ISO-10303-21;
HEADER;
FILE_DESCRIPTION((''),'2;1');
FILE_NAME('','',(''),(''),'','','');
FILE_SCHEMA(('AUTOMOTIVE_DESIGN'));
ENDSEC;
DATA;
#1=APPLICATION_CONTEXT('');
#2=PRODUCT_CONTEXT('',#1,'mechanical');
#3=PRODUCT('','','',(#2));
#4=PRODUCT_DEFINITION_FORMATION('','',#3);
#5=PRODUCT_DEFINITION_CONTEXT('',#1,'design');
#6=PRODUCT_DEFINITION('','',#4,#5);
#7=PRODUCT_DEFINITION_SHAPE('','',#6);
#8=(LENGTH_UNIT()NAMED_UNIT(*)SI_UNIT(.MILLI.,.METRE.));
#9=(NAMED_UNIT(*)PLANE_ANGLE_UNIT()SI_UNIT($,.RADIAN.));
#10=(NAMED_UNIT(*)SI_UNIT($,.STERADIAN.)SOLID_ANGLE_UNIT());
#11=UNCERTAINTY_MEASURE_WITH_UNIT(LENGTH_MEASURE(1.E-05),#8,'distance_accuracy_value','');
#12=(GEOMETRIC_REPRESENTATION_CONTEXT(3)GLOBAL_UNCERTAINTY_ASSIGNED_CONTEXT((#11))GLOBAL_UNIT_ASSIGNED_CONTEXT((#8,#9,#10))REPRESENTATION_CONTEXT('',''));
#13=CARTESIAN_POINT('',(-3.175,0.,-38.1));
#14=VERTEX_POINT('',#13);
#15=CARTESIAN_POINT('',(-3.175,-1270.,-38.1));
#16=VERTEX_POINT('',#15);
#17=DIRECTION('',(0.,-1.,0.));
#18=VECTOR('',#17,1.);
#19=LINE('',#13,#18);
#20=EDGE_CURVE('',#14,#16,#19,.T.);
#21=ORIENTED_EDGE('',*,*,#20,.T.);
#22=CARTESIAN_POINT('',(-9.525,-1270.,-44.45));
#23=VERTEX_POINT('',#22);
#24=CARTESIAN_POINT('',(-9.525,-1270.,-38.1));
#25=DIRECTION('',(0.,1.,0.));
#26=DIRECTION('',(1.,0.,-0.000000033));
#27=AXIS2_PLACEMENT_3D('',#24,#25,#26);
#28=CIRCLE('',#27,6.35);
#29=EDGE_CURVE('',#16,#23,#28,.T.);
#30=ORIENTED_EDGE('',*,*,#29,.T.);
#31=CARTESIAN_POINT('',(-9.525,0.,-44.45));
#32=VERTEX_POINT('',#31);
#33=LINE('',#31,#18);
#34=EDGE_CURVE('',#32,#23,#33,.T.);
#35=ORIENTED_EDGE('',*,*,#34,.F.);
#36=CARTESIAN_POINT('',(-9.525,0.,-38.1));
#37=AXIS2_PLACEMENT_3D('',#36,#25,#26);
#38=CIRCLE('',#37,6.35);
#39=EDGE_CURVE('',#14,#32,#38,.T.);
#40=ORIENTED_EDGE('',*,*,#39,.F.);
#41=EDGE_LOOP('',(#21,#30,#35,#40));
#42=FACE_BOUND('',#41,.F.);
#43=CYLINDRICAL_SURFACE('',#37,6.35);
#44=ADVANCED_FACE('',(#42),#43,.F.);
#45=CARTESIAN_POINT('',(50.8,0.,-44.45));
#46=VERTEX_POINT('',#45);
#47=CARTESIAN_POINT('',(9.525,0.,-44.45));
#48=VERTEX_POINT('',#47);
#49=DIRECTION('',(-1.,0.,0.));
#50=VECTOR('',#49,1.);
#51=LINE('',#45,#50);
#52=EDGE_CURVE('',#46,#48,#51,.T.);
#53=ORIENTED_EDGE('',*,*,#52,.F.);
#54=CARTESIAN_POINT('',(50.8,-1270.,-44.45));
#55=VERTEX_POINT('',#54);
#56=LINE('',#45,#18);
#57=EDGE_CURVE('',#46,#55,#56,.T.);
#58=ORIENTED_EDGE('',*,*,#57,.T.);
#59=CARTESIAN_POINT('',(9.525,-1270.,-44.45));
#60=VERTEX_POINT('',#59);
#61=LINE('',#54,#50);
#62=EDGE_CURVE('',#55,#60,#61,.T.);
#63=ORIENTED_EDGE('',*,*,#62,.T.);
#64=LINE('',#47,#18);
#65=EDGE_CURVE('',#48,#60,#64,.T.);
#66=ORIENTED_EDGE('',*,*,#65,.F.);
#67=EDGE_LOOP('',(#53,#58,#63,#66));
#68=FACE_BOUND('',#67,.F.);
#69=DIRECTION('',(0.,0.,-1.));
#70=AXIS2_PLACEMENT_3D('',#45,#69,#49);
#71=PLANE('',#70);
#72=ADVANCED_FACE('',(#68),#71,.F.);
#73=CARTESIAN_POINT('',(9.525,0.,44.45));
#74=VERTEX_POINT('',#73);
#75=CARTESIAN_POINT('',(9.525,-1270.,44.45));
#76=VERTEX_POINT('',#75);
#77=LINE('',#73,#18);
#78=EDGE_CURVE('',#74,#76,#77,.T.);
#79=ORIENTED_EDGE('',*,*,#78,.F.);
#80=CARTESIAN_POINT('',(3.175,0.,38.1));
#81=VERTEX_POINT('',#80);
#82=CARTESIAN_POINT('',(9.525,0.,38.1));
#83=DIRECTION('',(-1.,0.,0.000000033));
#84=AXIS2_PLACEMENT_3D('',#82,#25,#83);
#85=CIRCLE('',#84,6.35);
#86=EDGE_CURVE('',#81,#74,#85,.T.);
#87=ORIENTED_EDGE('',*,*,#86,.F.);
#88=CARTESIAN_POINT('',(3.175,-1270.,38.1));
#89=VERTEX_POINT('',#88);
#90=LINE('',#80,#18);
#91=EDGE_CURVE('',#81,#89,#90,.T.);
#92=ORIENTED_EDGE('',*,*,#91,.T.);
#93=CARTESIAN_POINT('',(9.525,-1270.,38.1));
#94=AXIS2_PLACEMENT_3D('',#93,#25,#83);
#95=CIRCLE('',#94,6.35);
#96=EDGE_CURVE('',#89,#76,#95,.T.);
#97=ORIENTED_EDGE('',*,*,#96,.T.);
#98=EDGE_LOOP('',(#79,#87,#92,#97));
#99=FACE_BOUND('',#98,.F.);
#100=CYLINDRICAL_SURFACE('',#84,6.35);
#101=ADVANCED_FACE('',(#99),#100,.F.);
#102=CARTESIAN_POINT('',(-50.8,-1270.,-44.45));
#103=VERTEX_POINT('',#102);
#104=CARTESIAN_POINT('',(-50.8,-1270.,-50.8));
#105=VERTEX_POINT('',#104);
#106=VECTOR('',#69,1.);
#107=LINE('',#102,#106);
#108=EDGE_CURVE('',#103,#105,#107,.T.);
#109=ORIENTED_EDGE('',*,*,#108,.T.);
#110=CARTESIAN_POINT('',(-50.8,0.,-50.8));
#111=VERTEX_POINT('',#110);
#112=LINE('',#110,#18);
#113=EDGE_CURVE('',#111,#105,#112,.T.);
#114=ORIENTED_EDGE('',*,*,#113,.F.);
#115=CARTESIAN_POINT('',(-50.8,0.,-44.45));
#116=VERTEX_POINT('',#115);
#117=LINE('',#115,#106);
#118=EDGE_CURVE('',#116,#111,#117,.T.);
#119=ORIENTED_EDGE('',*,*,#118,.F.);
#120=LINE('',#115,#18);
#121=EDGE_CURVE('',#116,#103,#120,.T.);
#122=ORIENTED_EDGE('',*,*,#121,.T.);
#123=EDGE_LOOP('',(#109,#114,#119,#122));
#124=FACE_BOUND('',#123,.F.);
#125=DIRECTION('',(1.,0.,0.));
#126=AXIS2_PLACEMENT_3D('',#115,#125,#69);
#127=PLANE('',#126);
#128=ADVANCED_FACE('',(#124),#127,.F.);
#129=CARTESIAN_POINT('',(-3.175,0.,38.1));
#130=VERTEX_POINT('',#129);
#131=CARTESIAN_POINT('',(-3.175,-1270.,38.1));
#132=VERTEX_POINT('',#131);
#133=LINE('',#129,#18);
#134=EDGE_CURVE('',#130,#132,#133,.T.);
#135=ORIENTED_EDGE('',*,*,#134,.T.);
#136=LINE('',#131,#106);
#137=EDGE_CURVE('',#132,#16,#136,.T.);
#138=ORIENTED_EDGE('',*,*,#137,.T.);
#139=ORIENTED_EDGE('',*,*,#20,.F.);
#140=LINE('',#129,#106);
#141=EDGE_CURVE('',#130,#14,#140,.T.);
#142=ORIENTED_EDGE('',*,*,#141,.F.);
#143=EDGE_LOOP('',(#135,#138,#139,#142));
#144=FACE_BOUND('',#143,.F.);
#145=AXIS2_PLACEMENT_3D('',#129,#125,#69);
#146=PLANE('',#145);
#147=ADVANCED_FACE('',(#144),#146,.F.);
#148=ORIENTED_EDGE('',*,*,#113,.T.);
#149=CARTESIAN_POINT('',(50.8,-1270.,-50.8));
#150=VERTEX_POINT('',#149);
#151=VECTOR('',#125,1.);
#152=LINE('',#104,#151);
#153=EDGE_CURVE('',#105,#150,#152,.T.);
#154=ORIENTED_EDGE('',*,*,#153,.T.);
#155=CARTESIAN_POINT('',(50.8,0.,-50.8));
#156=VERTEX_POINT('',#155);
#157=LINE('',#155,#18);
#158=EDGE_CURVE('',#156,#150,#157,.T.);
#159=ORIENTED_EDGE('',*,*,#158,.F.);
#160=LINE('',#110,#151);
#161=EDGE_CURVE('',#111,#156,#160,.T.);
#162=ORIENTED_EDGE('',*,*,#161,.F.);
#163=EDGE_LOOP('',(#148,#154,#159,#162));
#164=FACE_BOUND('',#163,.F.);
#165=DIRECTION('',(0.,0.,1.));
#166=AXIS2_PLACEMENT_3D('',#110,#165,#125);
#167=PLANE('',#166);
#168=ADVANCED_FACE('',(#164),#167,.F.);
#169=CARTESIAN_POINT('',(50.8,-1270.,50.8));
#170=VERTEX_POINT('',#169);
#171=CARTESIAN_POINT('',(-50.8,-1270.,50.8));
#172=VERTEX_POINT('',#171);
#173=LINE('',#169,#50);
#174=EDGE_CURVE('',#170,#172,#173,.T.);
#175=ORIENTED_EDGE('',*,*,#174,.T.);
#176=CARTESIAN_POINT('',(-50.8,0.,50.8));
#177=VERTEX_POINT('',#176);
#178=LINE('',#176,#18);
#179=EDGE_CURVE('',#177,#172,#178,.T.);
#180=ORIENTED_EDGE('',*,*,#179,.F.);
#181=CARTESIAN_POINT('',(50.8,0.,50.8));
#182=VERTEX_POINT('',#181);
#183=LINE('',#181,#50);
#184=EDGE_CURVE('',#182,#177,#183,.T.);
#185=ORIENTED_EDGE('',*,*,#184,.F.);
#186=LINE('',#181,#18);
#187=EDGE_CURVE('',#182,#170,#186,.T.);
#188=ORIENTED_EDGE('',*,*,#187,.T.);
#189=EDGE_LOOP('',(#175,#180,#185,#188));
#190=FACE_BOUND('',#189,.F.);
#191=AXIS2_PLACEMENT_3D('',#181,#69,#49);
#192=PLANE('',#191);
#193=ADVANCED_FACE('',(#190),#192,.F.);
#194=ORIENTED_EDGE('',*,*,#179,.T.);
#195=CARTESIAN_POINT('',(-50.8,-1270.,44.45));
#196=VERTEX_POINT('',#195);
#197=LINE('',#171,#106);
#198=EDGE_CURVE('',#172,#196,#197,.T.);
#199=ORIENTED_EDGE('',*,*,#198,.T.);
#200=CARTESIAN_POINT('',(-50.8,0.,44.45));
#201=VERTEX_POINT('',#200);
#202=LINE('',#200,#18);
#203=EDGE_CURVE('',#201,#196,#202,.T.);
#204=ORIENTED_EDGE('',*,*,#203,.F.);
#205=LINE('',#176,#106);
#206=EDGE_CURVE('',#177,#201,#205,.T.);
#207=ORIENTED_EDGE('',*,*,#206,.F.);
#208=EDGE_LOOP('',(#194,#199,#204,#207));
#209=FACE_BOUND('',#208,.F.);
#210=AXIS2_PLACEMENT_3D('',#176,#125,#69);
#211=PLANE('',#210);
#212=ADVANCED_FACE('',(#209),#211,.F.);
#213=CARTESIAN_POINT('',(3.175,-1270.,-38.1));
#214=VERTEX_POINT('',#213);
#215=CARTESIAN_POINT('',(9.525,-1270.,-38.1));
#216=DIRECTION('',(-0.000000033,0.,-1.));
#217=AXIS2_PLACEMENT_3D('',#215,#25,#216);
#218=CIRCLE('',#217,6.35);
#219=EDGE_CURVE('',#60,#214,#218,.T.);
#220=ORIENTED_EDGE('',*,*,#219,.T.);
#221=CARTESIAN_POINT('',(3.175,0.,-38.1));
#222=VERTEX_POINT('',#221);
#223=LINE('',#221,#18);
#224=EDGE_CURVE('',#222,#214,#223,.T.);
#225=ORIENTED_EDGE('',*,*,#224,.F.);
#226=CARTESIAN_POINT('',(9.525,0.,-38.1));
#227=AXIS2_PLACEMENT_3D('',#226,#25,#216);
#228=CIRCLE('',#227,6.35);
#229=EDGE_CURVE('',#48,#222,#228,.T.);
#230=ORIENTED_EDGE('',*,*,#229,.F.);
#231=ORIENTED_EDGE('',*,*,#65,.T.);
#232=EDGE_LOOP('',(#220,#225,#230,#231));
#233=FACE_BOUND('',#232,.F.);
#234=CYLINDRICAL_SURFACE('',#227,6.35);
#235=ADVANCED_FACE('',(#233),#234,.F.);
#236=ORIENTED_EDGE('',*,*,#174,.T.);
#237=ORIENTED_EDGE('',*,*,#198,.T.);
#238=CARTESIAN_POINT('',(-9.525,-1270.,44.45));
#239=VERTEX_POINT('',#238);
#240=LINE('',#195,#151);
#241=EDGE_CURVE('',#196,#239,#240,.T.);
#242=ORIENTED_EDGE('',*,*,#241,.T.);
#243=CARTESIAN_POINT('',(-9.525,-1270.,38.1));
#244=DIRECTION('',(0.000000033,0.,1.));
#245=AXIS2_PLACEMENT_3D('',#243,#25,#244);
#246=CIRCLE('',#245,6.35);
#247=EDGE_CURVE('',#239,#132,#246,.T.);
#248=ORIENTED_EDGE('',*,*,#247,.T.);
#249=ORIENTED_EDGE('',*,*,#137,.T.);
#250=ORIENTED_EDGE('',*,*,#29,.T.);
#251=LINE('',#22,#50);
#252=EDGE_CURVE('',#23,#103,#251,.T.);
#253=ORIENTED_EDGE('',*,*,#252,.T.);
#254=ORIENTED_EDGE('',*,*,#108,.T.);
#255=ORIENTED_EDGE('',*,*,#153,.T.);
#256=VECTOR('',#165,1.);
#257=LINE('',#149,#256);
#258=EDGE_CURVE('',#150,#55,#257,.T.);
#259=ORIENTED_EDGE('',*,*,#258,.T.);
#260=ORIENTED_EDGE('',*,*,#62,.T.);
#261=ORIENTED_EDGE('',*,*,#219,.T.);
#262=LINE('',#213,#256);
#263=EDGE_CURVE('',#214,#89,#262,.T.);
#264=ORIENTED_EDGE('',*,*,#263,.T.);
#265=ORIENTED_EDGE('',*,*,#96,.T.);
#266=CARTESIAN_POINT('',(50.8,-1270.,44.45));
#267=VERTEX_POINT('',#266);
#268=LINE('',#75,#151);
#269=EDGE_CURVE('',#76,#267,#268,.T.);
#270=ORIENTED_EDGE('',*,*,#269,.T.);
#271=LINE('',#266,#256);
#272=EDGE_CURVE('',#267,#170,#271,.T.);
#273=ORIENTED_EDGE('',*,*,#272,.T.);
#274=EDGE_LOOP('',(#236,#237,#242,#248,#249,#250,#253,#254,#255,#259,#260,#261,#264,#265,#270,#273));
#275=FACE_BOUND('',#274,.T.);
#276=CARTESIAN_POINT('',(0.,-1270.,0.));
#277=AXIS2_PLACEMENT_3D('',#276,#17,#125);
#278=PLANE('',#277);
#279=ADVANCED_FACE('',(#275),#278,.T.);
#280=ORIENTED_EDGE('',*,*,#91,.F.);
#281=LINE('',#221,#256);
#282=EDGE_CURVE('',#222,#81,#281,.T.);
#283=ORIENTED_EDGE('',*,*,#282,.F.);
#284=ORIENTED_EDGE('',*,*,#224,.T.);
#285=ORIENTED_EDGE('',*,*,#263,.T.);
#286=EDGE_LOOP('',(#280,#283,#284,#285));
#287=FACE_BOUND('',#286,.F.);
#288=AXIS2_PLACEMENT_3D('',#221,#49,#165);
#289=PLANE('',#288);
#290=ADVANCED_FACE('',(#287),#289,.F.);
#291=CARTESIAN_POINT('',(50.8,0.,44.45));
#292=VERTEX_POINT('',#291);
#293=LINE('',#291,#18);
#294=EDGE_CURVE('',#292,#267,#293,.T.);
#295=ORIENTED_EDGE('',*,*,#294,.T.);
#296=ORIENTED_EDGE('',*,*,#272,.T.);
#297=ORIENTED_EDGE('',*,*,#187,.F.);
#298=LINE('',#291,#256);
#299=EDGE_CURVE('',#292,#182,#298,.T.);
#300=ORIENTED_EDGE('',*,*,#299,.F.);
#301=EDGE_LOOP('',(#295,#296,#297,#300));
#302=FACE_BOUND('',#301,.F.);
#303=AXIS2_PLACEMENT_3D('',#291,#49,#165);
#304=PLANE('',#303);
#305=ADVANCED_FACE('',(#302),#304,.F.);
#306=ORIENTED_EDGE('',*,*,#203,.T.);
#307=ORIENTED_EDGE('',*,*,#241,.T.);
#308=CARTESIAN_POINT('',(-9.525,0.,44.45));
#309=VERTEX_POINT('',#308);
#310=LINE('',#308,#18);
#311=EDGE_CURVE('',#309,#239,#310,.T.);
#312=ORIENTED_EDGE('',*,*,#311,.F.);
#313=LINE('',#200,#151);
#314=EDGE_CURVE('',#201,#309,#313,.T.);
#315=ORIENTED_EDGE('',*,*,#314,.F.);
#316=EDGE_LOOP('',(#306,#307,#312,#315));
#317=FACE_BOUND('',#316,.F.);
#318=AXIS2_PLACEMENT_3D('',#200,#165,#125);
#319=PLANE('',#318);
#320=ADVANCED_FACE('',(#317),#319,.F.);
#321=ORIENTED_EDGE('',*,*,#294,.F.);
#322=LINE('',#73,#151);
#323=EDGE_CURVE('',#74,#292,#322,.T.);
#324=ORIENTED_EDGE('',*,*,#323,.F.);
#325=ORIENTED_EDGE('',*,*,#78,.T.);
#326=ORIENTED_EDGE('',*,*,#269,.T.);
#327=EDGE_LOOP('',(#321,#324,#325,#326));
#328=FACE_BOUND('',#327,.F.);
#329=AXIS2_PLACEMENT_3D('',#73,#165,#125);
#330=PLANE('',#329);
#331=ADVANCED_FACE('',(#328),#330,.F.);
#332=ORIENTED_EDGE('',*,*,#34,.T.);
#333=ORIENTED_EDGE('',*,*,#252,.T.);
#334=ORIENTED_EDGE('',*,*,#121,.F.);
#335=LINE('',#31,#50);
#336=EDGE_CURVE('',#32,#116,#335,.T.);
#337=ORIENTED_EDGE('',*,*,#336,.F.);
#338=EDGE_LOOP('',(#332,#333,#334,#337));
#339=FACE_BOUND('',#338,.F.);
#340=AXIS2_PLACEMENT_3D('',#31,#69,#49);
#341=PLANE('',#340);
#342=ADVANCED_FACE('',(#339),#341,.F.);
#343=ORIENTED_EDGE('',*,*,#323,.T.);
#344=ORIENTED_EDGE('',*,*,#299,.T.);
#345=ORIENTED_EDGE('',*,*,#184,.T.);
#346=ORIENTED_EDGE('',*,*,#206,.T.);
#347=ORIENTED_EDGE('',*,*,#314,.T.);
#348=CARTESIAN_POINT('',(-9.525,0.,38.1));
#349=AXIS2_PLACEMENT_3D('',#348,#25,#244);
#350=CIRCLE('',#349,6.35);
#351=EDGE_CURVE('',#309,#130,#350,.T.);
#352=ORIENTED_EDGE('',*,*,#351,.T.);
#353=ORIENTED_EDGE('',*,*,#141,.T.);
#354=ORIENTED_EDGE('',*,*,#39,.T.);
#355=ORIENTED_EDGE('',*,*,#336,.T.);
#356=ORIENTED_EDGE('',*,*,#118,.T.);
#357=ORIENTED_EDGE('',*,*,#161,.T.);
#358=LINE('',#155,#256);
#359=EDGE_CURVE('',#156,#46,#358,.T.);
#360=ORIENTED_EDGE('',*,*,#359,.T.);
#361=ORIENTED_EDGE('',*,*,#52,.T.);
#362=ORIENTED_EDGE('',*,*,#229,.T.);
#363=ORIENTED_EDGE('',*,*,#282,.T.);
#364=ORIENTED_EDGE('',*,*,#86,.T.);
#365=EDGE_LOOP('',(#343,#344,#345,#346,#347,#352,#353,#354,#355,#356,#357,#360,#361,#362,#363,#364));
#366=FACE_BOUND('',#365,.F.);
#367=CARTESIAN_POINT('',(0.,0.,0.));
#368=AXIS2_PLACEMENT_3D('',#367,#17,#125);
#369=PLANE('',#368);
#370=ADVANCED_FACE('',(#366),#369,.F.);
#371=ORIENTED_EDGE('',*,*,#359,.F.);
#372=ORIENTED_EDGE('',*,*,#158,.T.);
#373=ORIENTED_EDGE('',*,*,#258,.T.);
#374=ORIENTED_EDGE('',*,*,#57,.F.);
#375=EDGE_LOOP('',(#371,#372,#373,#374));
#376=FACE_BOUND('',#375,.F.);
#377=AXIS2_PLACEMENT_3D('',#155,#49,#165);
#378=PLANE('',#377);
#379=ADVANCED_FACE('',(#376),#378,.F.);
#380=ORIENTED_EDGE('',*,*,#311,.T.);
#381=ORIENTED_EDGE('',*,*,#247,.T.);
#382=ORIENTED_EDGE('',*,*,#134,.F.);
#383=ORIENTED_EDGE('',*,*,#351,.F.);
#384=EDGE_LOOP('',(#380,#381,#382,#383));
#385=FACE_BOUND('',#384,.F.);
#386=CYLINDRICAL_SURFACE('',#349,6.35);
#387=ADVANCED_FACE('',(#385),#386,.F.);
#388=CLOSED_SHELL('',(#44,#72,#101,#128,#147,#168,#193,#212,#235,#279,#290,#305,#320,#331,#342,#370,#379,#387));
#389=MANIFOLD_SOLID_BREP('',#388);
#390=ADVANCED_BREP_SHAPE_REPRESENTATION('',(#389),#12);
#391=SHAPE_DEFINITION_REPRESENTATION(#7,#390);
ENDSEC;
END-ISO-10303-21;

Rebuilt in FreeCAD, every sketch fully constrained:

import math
import FreeCAD as App
import Part
import Sketcher

V = App.Vector
Q = App.Units.Quantity

doc = App.newDocument("Part")
body = doc.addObject("PartDesign::Body", "Body")

# Sketch on XZ plane
sketch1 = body.newObject("Sketcher::SketchObject", "Sketch")
sketch1.AttachmentSupport = (doc.getObject("XZ_Plane"), [""])
sketch1.MapMode = "FlatFace"
sketch1.addGeometry([
    Part.LineSegment(V(51, 51, 0), V(-51, 51, 0)),  # 0
    Part.LineSegment(V(-51, 51, 0), V(-51, 44, 0)),  # 1
    Part.LineSegment(V(-51, 44, 0), V(-10, 44, 0)),  # 2
    Part.ArcOfCircle(Part.Circle(V(-10, 38, 0), V(0, 0, 1), 6), math.radians(0), math.radians(90)),  # 3
    Part.LineSegment(V(-3, 38, 0), V(-3, -38, 0)),  # 4
    Part.ArcOfCircle(Part.Circle(V(-10, -38, 0), V(0, 0, 1), 6), math.radians(-90), math.radians(0)),  # 5
    Part.LineSegment(V(-10, -44, 0), V(-51, -44, 0)),  # 6
    Part.LineSegment(V(-51, -44, 0), V(-51, -51, 0)),  # 7
    Part.LineSegment(V(-51, -51, 0), V(51, -51, 0)),  # 8
    Part.LineSegment(V(51, -51, 0), V(51, -44, 0)),  # 9
    Part.LineSegment(V(51, -44, 0), V(10, -44, 0)),  # 10
    Part.ArcOfCircle(Part.Circle(V(10, -38, 0), V(0, 0, 1), 6), math.radians(-180), math.radians(-90)),  # 11
    Part.LineSegment(V(3, -38, 0), V(3, 38, 0)),  # 12
    Part.ArcOfCircle(Part.Circle(V(10, 38, 0), V(0, 0, 1), 6), math.radians(90), math.radians(180)),  # 13
    Part.LineSegment(V(10, 44, 0), V(51, 44, 0)),  # 14
    Part.LineSegment(V(51, 44, 0), V(51, 51, 0)),  # 15
], False)
sketch1.addConstraint([
    Sketcher.Constraint("Coincident", 0, 2, 1, 1),
    Sketcher.Constraint("Coincident", 1, 2, 2, 1),
    Sketcher.Constraint("Tangent", 2, 2, 3, 2),
    Sketcher.Constraint("Tangent", 3, 1, 4, 1),
    Sketcher.Constraint("Tangent", 4, 2, 5, 2),
    Sketcher.Constraint("Tangent", 5, 1, 6, 1),
    Sketcher.Constraint("Coincident", 6, 2, 7, 1),
    Sketcher.Constraint("Coincident", 7, 2, 8, 1),
    Sketcher.Constraint("Coincident", 8, 2, 9, 1),
    Sketcher.Constraint("Coincident", 9, 2, 10, 1),
    Sketcher.Constraint("Tangent", 10, 2, 11, 2),
    Sketcher.Constraint("Tangent", 11, 1, 12, 1),
    Sketcher.Constraint("Tangent", 12, 2, 13, 2),
    Sketcher.Constraint("Tangent", 13, 1, 14, 1),
    Sketcher.Constraint("Coincident", 14, 2, 15, 1),
    Sketcher.Constraint("Coincident", 15, 2, 0, 1),
    Sketcher.Constraint("Horizontal", 0),
    Sketcher.Constraint("Vertical", 1),
    Sketcher.Constraint("Horizontal", 2),
    Sketcher.Constraint("Vertical", 4),
    Sketcher.Constraint("Horizontal", 6),
    Sketcher.Constraint("Vertical", 7),
    Sketcher.Constraint("Horizontal", 8),
    Sketcher.Constraint("Vertical", 9),
    Sketcher.Constraint("Horizontal", 10),
    Sketcher.Constraint("Vertical", 12),
    Sketcher.Constraint("Horizontal", 14),
    Sketcher.Constraint("Vertical", 15),
    Sketcher.Constraint("Equal", 3, 5),
    Sketcher.Constraint("Equal", 5, 11),
    Sketcher.Constraint("Equal", 11, 13),
    Sketcher.Constraint("Symmetric", 3, 3, 11, 3, -1, 1),
    Sketcher.Constraint("Symmetric", 0, 2, 8, 2, -1, 1),
    Sketcher.Constraint("Symmetric", 6, 2, 14, 2, -1, 1),
    Sketcher.Constraint("Symmetric", 6, 2, 9, 2, -2),
    Sketcher.Constraint("DistanceX", 0, 2, 0, 1, Q("4 in")),
    Sketcher.Constraint("DistanceY", 4, 2, 4, 1, Q("3 in")),
    Sketcher.Constraint("Radius", 3, Q("0.25 in")),
    Sketcher.Constraint("DistanceY", -1, 1, 0, 2, Q("2 in")),
    Sketcher.Constraint("DistanceX", 3, 1, 13, 3, Q("0.5 in")),
])
pad1 = body.newObject("PartDesign::Pad", "Pad")
pad1.Profile = sketch1
pad1.Length = Q("50 in")

doc.recompute()
